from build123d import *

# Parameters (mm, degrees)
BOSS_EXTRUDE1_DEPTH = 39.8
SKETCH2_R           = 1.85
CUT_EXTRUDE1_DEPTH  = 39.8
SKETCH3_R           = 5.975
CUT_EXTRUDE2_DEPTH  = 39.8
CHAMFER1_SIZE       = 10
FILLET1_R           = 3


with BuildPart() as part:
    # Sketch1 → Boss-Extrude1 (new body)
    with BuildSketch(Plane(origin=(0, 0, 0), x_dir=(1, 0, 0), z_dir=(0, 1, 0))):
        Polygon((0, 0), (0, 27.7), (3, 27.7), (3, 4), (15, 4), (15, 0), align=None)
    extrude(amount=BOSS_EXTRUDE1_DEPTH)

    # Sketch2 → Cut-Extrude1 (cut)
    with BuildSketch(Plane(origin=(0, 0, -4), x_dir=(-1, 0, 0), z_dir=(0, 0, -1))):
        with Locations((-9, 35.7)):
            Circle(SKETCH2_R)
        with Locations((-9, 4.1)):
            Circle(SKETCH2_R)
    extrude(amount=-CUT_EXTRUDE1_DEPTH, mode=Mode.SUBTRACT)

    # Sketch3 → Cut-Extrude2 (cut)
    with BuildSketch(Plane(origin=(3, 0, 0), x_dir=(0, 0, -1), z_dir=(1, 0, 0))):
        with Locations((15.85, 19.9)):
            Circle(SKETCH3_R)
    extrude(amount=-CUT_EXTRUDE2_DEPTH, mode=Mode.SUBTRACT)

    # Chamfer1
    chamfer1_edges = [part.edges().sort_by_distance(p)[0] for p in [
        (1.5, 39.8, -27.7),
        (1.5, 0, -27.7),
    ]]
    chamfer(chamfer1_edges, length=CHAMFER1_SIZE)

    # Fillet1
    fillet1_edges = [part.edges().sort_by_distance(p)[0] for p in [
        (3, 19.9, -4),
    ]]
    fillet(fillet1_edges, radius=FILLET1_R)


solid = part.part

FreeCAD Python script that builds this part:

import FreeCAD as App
import Part
import Sketcher
from FreeCAD import Vector


def edges_at(feature, points):
    """Names of the edges that pass closest to the given points."""
    edges = feature.Shape.Edges
    near = lambda p: min(range(len(edges)), key=lambda i: edges[i].distToShape(Part.Vertex(*p))[0])
    return sorted({f"Edge{near(p) + 1}" for p in points})


def add_polygon(sketch, points):
    """Adds a closed chain of lines whose ends are joined by coincident constraints."""
    first, n = sketch.GeometryCount, len(points)
    for a, b in zip(points, points[1:] + points[:1]):
        sketch.addGeometry(Part.LineSegment(App.Vector(*a, 0), App.Vector(*b, 0)), False)
    for i in range(n):
        sketch.addConstraint(Sketcher.Constraint("Coincident", first + i, 2, first + (i + 1) % n, 1))

doc = App.newDocument("Part")
body = doc.addObject("PartDesign::Body", "Body")

# Sketch on XZ plane
sketch1 = body.newObject("Sketcher::SketchObject", "Sketch")
sketch1.AttachmentSupport = (doc.getObject("XZ_Plane"), [""])
sketch1.MapMode = "FlatFace"
add_polygon(sketch1, [(0, -27.7), (0, 0), (15, 0), (15, -4), (3, -4), (3, -27.7)])  # lines 0-5
sketch1.addConstraint([
    Sketcher.Constraint("Vertical", 0),
    Sketcher.Constraint("Horizontal", 1),
    Sketcher.Constraint("Vertical", 2),
    Sketcher.Constraint("Horizontal", 3),
    Sketcher.Constraint("Vertical", 4),
    Sketcher.Constraint("Horizontal", 5),
    Sketcher.Constraint("Coincident", 0, 2, -1, 1),
    Sketcher.Constraint("DistanceX", 1, 1, 1, 2, 15.0),
    Sketcher.Constraint("DistanceX", 3, 2, 3, 1, 12.0),
    Sketcher.Constraint("DistanceY", 2, 2, 2, 1, 4.0),
    Sketcher.Constraint("DistanceY", 0, 1, 0, 2, 27.7),
])
pad1 = body.newObject("PartDesign::Pad", "Pad")
pad1.Profile = sketch1
pad1.Length = 39.8
pad1.Reversed = True

# Sketch on XY plane
sketch2 = body.newObject("Sketcher::SketchObject", "Sketch001")
sketch2.AttachmentSupport = (doc.getObject("XY_Plane"), [""])
sketch2.MapMode = "FlatFace"
sketch2.AttachmentOffset = App.Placement(Vector(0, 0, -4), App.Rotation())
sketch2.addGeometry([
    Part.Circle(Vector(9, 35.7, 0), Vector(0, 0, 1), 1.85),
    Part.Circle(Vector(9, 4.1, 0), Vector(0, 0, 1), 1.85),
], False)
sketch2.addConstraint([
    Sketcher.Constraint("Equal", 0, 1),
    Sketcher.Constraint("Vertical", 0, 3, 1, 3),
    Sketcher.Constraint("Diameter", 0, 3.7),
    Sketcher.Constraint("DistanceX", -1, 1, 0, 3, 9.0),
    Sketcher.Constraint("DistanceY", -1, 1, 0, 3, 35.7),
    Sketcher.Constraint("DistanceY", -1, 1, 1, 3, 4.1),
])
pocket1 = body.newObject("PartDesign::Pocket", "Pocket")
pocket1.Profile = sketch2
pocket1.Length = 39.8
pocket1.Reversed = True

# Sketch on YZ plane
sketch3 = body.newObject("Sketcher::SketchObject", "Sketch002")
sketch3.AttachmentSupport = (doc.getObject("YZ_Plane"), [""])
sketch3.MapMode = "FlatFace"
sketch3.AttachmentOffset = App.Placement(Vector(0, 0, 3), App.Rotation())
sketch3.addGeometry(Part.Circle(Vector(19.9, -15.85, 0), Vector(0, 0, 1), 5.975), False)
sketch3.addConstraint([
    Sketcher.Constraint("Diameter", 0, 11.95),
    Sketcher.Constraint("DistanceX", -1, 1, 0, 3, 19.9),
    Sketcher.Constraint("DistanceY", 0, 3, -1, 1, 15.85),
])
pocket2 = body.newObject("PartDesign::Pocket", "Pocket001")
pocket2.Profile = sketch3
pocket2.Length = 39.8
doc.recompute()

chamfer = body.newObject("PartDesign::Chamfer", "Chamfer")
chamfer.Base = (pocket2, edges_at(pocket2, [(1.5, 39.8, -27.7), (1.5, 0, -27.7)]))
chamfer.Size = 10
doc.recompute()

fillet = body.newObject("PartDesign::Fillet", "Fillet")
fillet.Base = (chamfer, edges_at(chamfer, [(3, 19.9, -4)]))
fillet.Radius = 3

doc.recompute()
